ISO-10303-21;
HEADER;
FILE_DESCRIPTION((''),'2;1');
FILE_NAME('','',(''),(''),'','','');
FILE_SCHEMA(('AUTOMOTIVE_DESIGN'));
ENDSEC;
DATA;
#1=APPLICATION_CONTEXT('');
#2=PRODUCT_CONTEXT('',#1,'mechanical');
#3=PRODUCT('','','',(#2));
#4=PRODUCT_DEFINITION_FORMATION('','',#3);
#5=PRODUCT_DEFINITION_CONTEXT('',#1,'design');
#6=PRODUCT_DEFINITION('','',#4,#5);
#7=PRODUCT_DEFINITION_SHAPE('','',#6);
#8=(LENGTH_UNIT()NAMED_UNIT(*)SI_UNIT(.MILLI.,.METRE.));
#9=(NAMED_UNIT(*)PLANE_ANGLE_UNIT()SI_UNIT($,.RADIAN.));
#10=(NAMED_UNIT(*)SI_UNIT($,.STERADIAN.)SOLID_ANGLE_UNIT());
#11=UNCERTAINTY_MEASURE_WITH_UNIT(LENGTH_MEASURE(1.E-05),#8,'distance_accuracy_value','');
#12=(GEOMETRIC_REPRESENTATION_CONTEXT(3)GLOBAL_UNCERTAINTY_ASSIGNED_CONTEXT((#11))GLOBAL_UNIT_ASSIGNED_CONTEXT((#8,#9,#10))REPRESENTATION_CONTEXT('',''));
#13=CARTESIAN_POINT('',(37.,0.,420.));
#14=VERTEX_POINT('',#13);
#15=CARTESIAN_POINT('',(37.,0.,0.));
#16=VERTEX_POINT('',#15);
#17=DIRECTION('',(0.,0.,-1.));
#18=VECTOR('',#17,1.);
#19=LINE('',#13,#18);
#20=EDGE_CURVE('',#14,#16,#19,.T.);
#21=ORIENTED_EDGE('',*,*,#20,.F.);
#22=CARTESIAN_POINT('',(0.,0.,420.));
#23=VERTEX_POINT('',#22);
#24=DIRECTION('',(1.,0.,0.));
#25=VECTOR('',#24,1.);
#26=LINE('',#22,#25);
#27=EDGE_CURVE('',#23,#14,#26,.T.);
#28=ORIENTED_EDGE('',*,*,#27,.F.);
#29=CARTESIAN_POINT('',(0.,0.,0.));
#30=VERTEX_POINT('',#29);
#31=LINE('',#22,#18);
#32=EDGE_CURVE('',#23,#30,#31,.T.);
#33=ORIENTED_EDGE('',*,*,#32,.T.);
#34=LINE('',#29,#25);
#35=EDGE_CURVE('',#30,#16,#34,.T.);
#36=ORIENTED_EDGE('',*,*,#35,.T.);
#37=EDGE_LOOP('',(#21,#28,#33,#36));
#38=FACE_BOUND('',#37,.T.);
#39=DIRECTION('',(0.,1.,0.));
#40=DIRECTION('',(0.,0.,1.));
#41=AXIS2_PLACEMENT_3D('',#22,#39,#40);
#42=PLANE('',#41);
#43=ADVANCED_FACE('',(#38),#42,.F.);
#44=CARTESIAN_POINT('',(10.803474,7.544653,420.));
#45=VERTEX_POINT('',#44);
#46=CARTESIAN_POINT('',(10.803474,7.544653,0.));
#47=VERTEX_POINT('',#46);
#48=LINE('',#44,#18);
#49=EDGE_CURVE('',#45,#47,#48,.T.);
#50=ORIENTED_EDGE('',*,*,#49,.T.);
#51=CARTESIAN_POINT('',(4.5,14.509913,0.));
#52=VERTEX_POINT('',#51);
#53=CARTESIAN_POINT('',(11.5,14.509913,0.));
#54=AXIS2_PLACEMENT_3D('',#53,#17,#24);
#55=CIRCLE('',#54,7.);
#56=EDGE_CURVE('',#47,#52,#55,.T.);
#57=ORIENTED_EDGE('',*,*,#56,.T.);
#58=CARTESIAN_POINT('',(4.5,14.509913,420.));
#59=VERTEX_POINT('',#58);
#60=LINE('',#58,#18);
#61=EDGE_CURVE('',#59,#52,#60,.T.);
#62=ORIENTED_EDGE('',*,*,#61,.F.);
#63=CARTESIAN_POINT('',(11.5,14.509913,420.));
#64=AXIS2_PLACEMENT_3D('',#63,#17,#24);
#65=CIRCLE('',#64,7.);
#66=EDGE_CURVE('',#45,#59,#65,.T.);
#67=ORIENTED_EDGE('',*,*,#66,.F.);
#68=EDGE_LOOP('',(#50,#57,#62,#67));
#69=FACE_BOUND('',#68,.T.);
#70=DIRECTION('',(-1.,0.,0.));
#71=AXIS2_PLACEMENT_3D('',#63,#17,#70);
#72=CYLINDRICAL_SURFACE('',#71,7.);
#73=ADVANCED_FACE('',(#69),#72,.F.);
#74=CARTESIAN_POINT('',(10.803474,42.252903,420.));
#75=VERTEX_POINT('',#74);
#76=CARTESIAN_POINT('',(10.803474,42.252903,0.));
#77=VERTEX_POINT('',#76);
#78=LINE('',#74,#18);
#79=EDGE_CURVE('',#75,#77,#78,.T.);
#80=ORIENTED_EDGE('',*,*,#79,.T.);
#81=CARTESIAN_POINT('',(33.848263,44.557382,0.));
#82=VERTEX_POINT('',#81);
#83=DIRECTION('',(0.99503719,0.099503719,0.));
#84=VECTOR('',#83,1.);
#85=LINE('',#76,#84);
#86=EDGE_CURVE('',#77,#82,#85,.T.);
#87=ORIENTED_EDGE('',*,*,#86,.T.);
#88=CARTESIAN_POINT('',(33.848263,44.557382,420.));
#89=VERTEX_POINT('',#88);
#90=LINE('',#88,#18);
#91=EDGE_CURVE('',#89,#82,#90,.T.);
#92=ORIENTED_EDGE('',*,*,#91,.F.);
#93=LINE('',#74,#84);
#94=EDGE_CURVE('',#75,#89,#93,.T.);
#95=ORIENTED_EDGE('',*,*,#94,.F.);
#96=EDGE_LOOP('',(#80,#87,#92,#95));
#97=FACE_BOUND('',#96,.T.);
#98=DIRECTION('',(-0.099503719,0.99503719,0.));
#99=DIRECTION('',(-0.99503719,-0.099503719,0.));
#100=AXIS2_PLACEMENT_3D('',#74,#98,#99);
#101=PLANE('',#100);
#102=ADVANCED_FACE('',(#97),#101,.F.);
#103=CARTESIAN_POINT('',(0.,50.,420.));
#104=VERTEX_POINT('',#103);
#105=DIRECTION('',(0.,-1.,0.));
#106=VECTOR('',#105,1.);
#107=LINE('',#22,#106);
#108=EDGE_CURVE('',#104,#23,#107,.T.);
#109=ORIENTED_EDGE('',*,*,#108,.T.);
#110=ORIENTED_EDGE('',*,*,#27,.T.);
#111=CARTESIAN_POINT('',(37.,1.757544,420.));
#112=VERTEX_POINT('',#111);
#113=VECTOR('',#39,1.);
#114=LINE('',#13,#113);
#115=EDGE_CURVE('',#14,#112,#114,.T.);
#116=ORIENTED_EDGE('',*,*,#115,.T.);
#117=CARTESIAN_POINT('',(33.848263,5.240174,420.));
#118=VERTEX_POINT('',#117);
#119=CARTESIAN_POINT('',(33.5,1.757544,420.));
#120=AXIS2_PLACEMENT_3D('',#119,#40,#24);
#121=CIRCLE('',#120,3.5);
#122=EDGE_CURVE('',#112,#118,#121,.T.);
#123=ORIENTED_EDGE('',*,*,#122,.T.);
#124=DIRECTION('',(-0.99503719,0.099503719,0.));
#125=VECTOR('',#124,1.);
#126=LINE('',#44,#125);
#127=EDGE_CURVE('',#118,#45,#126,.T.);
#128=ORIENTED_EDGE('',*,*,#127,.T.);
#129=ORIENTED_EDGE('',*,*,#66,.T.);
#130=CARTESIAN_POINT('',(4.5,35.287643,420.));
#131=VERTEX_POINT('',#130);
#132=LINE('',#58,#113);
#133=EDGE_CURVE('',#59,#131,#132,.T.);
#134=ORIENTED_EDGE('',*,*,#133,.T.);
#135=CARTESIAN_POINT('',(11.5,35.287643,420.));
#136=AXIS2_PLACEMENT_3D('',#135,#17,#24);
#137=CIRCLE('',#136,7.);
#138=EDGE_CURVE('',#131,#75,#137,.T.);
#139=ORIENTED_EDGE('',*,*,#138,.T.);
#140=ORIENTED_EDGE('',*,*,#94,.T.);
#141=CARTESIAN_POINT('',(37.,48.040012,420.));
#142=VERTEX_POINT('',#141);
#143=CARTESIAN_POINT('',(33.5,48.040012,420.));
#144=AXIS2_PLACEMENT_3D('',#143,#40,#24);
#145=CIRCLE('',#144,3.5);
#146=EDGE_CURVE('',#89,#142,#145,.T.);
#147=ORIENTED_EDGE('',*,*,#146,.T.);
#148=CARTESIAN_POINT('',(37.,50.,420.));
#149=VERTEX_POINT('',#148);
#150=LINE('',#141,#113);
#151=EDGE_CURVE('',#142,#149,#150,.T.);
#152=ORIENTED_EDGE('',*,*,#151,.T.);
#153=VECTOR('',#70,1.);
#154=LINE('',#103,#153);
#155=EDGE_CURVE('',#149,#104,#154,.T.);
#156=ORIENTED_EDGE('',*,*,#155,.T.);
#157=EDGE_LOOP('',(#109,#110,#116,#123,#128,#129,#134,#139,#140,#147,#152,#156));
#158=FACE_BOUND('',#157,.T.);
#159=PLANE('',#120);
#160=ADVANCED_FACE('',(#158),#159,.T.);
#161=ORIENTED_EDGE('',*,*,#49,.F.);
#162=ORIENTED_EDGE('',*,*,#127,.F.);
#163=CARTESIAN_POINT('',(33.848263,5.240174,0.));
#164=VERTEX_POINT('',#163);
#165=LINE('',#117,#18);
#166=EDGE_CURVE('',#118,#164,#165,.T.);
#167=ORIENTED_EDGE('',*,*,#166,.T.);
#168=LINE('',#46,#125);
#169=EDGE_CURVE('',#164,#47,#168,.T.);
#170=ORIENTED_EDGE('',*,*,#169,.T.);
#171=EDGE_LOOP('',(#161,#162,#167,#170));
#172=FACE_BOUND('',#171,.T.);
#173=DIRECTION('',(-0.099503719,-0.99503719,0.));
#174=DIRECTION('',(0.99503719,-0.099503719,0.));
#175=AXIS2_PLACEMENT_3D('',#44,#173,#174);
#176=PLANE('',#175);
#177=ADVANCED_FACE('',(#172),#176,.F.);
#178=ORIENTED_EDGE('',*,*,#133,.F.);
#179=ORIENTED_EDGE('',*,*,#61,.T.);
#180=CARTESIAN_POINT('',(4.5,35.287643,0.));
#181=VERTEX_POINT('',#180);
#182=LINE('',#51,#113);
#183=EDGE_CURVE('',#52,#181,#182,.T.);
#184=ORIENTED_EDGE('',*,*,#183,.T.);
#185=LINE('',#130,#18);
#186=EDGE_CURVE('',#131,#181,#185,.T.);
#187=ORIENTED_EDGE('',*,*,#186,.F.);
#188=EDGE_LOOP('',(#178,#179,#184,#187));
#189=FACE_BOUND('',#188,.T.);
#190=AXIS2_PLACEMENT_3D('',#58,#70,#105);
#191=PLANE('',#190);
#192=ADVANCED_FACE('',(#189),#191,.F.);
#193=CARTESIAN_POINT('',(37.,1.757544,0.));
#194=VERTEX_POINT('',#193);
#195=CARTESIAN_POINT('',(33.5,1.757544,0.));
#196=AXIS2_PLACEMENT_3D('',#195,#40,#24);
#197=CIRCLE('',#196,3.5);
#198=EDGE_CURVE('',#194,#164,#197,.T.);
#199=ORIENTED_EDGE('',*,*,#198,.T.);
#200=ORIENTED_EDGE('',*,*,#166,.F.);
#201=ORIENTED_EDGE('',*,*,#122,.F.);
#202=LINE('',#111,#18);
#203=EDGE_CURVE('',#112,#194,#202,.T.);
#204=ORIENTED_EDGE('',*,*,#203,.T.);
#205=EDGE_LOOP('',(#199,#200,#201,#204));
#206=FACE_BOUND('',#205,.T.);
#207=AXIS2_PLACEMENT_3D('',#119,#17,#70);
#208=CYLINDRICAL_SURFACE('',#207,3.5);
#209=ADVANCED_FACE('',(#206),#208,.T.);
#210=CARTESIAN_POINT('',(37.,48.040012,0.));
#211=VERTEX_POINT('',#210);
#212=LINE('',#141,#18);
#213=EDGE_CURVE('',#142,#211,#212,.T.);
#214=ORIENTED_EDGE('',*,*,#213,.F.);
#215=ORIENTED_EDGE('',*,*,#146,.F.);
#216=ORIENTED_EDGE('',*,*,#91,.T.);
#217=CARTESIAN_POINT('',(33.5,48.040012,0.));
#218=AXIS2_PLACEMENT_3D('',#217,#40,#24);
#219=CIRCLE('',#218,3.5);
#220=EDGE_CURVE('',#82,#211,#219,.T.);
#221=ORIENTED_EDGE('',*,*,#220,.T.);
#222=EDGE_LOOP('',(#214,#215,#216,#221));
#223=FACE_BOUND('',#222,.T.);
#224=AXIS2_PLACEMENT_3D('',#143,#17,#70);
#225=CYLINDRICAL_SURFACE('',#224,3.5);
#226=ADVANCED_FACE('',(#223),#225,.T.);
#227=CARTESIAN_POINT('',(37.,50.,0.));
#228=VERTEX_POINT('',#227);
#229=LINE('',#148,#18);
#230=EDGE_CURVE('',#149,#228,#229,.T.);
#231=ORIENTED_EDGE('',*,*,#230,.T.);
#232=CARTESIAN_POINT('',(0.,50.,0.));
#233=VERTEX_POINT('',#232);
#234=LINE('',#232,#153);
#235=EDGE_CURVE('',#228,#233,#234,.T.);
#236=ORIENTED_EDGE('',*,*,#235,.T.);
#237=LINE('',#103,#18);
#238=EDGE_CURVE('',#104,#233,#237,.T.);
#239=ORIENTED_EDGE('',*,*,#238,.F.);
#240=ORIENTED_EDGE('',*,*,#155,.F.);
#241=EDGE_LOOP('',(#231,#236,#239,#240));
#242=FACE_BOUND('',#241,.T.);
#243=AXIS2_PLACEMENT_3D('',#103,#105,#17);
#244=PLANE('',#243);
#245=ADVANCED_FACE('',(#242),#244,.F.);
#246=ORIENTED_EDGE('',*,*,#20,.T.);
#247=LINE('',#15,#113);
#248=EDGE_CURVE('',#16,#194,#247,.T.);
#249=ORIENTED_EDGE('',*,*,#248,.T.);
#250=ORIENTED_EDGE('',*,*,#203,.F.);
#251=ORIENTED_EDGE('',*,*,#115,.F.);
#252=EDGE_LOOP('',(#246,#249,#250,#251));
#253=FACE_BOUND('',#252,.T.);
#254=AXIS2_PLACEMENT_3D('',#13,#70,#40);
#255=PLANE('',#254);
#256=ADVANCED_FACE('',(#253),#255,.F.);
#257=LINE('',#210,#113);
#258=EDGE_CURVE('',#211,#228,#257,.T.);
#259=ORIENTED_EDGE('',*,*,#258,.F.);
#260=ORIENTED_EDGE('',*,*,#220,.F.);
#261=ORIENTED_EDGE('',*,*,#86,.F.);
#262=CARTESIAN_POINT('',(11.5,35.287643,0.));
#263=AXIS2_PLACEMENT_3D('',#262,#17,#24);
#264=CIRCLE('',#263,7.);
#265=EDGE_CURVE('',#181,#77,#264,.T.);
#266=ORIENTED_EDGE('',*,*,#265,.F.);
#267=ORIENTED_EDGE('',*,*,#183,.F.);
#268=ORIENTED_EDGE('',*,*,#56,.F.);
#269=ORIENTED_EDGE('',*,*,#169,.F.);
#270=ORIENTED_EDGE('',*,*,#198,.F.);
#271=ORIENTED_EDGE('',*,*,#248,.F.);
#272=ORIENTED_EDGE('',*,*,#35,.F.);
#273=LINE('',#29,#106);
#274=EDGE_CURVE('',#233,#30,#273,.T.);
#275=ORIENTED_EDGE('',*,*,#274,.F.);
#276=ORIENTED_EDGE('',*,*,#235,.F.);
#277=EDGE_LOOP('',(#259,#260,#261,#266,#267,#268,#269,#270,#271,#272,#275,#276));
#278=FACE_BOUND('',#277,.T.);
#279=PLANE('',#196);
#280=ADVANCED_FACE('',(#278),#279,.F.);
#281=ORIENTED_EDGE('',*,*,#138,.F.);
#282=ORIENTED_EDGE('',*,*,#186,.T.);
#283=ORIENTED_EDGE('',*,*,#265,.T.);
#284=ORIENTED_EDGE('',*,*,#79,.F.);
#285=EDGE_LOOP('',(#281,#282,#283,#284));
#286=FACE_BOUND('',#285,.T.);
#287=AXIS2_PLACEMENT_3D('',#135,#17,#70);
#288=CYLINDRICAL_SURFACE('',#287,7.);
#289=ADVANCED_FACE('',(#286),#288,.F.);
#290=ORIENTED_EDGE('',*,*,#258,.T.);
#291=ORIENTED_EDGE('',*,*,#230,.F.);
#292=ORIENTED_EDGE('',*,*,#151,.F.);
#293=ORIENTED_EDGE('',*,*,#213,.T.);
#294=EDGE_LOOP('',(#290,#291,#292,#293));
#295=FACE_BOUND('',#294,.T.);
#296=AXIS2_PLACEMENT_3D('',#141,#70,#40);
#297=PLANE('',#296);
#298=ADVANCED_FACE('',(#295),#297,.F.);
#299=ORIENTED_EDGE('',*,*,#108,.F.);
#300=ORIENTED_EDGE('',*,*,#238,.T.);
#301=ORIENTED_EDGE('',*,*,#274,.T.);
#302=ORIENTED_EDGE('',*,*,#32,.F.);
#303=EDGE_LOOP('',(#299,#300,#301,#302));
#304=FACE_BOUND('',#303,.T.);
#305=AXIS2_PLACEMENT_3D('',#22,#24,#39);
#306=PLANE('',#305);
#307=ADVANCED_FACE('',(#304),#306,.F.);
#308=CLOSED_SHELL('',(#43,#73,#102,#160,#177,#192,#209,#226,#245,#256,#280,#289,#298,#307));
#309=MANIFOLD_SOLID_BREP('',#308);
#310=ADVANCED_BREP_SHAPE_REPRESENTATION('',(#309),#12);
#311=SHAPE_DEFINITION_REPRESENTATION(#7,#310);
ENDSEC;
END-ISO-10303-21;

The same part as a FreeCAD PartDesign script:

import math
import FreeCAD as App
import Part
import Sketcher

doc = App.newDocument("Part")
body = doc.addObject("PartDesign::Body", "Body")

sketch1 = body.newObject("Sketcher::SketchObject", "Sketch")
sketch1.AttachmentSupport = (doc.getObject("XY_Plane"), [""])
sketch1.MapMode = "FlatFace"
sketch1.addGeometry(Part.LineSegment(App.Vector(0, 50, 0), App.Vector(0, 0, 0)), False)
sketch1.addGeometry(Part.LineSegment(App.Vector(0, 0, 0), App.Vector(37, 0, 0)), False)
sketch1.addGeometry(Part.LineSegment(App.Vector(37, 0, 0), App.Vector(37, 1.8, 0)), False)
sketch1.addGeometry(Part.ArcOfCircle(Part.Circle(App.Vector(33.5, 1.8, 0), App.Vector(0, 0, 1), 3.5), math.radians(0), math.radians(84)), False)
sketch1.addGeometry(Part.LineSegment(App.Vector(33.8, 5.2, 0), App.Vector(10.8, 7.5, 0)), False)
sketch1.addGeometry(Part.ArcOfCircle(Part.Circle(App.Vector(11.5, 14.5, 0), App.Vector(0, 0, 1), 7), math.radians(180), math.radians(264)), False)
sketch1.addGeometry(Part.LineSegment(App.Vector(4.5, 14.5, 0), App.Vector(4.5, 35.3, 0)), False)
sketch1.addGeometry(Part.ArcOfCircle(Part.Circle(App.Vector(11.5, 35.3, 0), App.Vector(0, 0, 1), 7), math.radians(96), math.radians(180)), False)
sketch1.addGeometry(Part.LineSegment(App.Vector(10.8, 42.3, 0), App.Vector(33.8, 44.6, 0)), False)
sketch1.addGeometry(Part.ArcOfCircle(Part.Circle(App.Vector(33.5, 48, 0), App.Vector(0, 0, 1), 3.5), math.radians(-84), math.radians(0)), False)
sketch1.addGeometry(Part.LineSegment(App.Vector(37, 48, 0), App.Vector(37, 50, 0)), False)
sketch1.addGeometry(Part.LineSegment(App.Vector(37, 50, 0), App.Vector(0, 50, 0)), False)
sketch1.addConstraint(Sketcher.Constraint("Coincident", 0, 2, 1, 1))
sketch1.addConstraint(Sketcher.Constraint("Coincident", 1, 2, 2, 1))
sketch1.addConstraint(Sketcher.Constraint("Tangent", 2, 2, 3, 1))
sketch1.addConstraint(Sketcher.Constraint("Tangent", 3, 2, 4, 1))
sketch1.addConstraint(Sketcher.Constraint("Tangent", 4, 2, 5, 2))
sketch1.addConstraint(Sketcher.Constraint("Tangent", 5, 1, 6, 1))
sketch1.addConstraint(Sketcher.Constraint("Tangent", 6, 2, 7, 2))
sketch1.addConstraint(Sketcher.Constraint("Tangent", 7, 1, 8, 1))
sketch1.addConstraint(Sketcher.Constraint("Tangent", 8, 2, 9, 1))
sketch1.addConstraint(Sketcher.Constraint("Tangent", 9, 2, 10, 1))
sketch1.addConstraint(Sketcher.Constraint("Coincident", 10, 2, 11, 1))
sketch1.addConstraint(Sketcher.Constraint("Coincident", 11, 2, 0, 1))
sketch1.addConstraint(Sketcher.Constraint("Vertical", 0))
sketch1.addConstraint(Sketcher.Constraint("Horizontal", 1))
sketch1.addConstraint(Sketcher.Constraint("Vertical", 2))
sketch1.addConstraint(Sketcher.Constraint("Vertical", 6))
sketch1.addConstraint(Sketcher.Constraint("Vertical", 10))
sketch1.addConstraint(Sketcher.Constraint("Horizontal", 11))
sketch1.addConstraint(Sketcher.Constraint("Coincident", 0, 2, -1, 1))
sketch1.addConstraint(Sketcher.Constraint("Equal", 5, 7))
sketch1.addConstraint(Sketcher.Constraint("Equal", 3, 9))
sketch1.addConstraint(Sketcher.Constraint("Vertical", 3, 3, 9, 3))
sketch1.addConstraint(Sketcher.Constraint("Vertical", 4, 2, 7, 1))
sketch1.addConstraint(Sketcher.Constraint("Radius", 5, 7.0))
sketch1.addConstraint(Sketcher.Constraint("Radius", 3, 3.5))
sketch1.addConstraint(Sketcher.Constraint("DistanceX", 1, 1, 1, 2, 37.0))
sketch1.addConstraint(Sketcher.Constraint("DistanceY", 0, 2, 0, 1, 50.0))
sketch1.addConstraint(Sketcher.Constraint("DistanceX", 5, 3, 3, 3, 22.0))
sketch1.addConstraint(Sketcher.Constraint("DistanceY", 6, 1, 6, 2, 20.77773))
sketch1.addConstraint(Sketcher.Constraint("DistanceY", 3, 3, 7, 3, 33.530099))
sketch1.addConstraint(Sketcher.Constraint("DistanceY", 2, 1, 2, 2, 1.757544))
pad1 = body.newObject("PartDesign::Pad", "Pad")
pad1.Profile = sketch1
pad1.Length = 420

doc.recompute()
